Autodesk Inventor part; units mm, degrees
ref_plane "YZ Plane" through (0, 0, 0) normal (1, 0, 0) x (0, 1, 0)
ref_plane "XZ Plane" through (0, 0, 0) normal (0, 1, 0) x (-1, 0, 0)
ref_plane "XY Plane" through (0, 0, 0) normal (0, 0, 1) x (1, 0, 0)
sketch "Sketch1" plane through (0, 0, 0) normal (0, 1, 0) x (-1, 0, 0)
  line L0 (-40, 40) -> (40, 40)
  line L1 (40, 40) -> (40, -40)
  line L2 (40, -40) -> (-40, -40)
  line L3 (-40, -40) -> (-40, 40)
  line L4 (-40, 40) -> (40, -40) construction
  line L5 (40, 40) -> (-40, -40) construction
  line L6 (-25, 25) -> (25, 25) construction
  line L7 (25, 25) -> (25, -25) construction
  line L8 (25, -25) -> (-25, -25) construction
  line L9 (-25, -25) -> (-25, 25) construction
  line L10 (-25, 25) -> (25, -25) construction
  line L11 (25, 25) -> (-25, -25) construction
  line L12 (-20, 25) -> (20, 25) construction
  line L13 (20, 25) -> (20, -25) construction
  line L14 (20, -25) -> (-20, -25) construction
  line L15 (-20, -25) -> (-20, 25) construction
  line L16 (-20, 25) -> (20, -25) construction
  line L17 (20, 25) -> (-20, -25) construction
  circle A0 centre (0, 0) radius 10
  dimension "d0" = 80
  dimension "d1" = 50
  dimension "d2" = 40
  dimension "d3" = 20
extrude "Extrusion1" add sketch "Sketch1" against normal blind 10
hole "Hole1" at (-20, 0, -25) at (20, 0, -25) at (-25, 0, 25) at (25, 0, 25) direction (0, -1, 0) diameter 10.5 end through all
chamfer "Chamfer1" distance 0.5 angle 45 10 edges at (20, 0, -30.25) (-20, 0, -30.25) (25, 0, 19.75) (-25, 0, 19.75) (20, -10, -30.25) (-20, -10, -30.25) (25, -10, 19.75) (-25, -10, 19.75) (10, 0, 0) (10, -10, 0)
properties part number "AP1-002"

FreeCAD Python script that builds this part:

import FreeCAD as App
import Part
import Sketcher
from FreeCAD import Vector


def edges_at(feature, points):
    """Names of the edges that pass closest to the given points."""
    edges = feature.Shape.Edges
    near = lambda p: min(range(len(edges)), key=lambda i: edges[i].distToShape(Part.Vertex(*p))[0])
    return sorted({f"Edge{near(p) + 1}" for p in points})

doc = App.newDocument("Part")
body = doc.addObject("PartDesign::Body", "Body")

# Sketch on XZ plane
sketch1 = body.newObject("Sketcher::SketchObject", "Sketch")
sketch1.AttachmentSupport = (doc.getObject("XZ_Plane"), [""])
sketch1.MapMode = "FlatFace"
sketch1.addGeometry([
    Part.LineSegment(Vector(-40, 40, 0), Vector(40, 40, 0)),  # 0
    Part.LineSegment(Vector(40, 40, 0), Vector(40, -40, 0)),  # 1
    Part.LineSegment(Vector(40, -40, 0), Vector(-40, -40, 0)),  # 2
    Part.LineSegment(Vector(-40, -40, 0), Vector(-40, 40, 0)),  # 3
    Part.Circle(Vector(0, 0, 0), Vector(0, 0, 1), 10),  # 4
], False)
sketch1.addConstraint([
    Sketcher.Constraint("Coincident", 0, 2, 1, 1),
    Sketcher.Constraint("Coincident", 1, 2, 2, 1),
    Sketcher.Constraint("Coincident", 2, 2, 3, 1),
    Sketcher.Constraint("Coincident", 3, 2, 0, 1),
    Sketcher.Constraint("Horizontal", 0),
    Sketcher.Constraint("Vertical", 1),
    Sketcher.Constraint("Horizontal", 2),
    Sketcher.Constraint("Vertical", 3),
    Sketcher.Constraint("Coincident", 4, 3, -1, 1),
    Sketcher.Constraint("Symmetric", 0, 2, 2, 2, -1, 1),
    Sketcher.Constraint("Equal", 2, 1),
    Sketcher.Constraint("Diameter", 4, 20.0),
    Sketcher.Constraint("DistanceX", 0, 1, 0, 2, 80.0),
])
pad1 = body.newObject("PartDesign::Pad", "Pad")
pad1.Profile = sketch1
pad1.Length = 10

# Sketch on XZ plane
sketch2 = body.newObject("Sketcher::SketchObject", "Sketch001")
sketch2.AttachmentSupport = (doc.getObject("XZ_Plane"), [""])
sketch2.MapMode = "FlatFace"
sketch2.addGeometry([
    Part.Circle(Vector(-20, -25, 0), Vector(0, 0, 1), 5.25),
    Part.Circle(Vector(20, -25, 0), Vector(0, 0, 1), 5.25),
    Part.Circle(Vector(-25, 25, 0), Vector(0, 0, 1), 5.25),
    Part.Circle(Vector(25, 25, 0), Vector(0, 0, 1), 5.25),
], False)
sketch2.addConstraint([
    Sketcher.Constraint("Equal", 0, 1),
    Sketcher.Constraint("Equal", 1, 2),
    Sketcher.Constraint("Equal", 2, 3),
    Sketcher.Constraint("Symmetric", 0, 3, 1, 3, -2),
    Sketcher.Constraint("Symmetric", 2, 3, 3, 3, -2),
    Sketcher.Constraint("Diameter", 0, 10.5),
    Sketcher.Constraint("DistanceX", 0, 3, -1, 1, 20.0),
    Sketcher.Constraint("DistanceY", 0, 3, -1, 1, 25.0),
    Sketcher.Constraint("DistanceX", 2, 3, -1, 1, 25.0),
    Sketcher.Constraint("DistanceY", -1, 1, 2, 3, 25.0),
])
doc.recompute()
hole = body.newObject("PartDesign::Hole", "Hole")
hole.Profile = sketch2
hole.ThreadType = "None"
hole.Diameter = 10.5
hole.DepthType = "ThroughAll"
hole.Reversed = True
doc.recompute()

chamfer = body.newObject("PartDesign::Chamfer", "Chamfer")
chamfer.Base = (hole, edges_at(hole, [
    (20, 0, -30.25),
    (-20, 0, -30.25),
    (25, 0, 19.75),
    (-25, 0, 19.75),
    (20, -10, -30.25),
    (-20, -10, -30.25),
    (25, -10, 19.75),
    (-25, -10, 19.75),
    (10, 0, 0),
    (10, -10, 0),
]))
chamfer.Size = 0.5

doc.recompute()
